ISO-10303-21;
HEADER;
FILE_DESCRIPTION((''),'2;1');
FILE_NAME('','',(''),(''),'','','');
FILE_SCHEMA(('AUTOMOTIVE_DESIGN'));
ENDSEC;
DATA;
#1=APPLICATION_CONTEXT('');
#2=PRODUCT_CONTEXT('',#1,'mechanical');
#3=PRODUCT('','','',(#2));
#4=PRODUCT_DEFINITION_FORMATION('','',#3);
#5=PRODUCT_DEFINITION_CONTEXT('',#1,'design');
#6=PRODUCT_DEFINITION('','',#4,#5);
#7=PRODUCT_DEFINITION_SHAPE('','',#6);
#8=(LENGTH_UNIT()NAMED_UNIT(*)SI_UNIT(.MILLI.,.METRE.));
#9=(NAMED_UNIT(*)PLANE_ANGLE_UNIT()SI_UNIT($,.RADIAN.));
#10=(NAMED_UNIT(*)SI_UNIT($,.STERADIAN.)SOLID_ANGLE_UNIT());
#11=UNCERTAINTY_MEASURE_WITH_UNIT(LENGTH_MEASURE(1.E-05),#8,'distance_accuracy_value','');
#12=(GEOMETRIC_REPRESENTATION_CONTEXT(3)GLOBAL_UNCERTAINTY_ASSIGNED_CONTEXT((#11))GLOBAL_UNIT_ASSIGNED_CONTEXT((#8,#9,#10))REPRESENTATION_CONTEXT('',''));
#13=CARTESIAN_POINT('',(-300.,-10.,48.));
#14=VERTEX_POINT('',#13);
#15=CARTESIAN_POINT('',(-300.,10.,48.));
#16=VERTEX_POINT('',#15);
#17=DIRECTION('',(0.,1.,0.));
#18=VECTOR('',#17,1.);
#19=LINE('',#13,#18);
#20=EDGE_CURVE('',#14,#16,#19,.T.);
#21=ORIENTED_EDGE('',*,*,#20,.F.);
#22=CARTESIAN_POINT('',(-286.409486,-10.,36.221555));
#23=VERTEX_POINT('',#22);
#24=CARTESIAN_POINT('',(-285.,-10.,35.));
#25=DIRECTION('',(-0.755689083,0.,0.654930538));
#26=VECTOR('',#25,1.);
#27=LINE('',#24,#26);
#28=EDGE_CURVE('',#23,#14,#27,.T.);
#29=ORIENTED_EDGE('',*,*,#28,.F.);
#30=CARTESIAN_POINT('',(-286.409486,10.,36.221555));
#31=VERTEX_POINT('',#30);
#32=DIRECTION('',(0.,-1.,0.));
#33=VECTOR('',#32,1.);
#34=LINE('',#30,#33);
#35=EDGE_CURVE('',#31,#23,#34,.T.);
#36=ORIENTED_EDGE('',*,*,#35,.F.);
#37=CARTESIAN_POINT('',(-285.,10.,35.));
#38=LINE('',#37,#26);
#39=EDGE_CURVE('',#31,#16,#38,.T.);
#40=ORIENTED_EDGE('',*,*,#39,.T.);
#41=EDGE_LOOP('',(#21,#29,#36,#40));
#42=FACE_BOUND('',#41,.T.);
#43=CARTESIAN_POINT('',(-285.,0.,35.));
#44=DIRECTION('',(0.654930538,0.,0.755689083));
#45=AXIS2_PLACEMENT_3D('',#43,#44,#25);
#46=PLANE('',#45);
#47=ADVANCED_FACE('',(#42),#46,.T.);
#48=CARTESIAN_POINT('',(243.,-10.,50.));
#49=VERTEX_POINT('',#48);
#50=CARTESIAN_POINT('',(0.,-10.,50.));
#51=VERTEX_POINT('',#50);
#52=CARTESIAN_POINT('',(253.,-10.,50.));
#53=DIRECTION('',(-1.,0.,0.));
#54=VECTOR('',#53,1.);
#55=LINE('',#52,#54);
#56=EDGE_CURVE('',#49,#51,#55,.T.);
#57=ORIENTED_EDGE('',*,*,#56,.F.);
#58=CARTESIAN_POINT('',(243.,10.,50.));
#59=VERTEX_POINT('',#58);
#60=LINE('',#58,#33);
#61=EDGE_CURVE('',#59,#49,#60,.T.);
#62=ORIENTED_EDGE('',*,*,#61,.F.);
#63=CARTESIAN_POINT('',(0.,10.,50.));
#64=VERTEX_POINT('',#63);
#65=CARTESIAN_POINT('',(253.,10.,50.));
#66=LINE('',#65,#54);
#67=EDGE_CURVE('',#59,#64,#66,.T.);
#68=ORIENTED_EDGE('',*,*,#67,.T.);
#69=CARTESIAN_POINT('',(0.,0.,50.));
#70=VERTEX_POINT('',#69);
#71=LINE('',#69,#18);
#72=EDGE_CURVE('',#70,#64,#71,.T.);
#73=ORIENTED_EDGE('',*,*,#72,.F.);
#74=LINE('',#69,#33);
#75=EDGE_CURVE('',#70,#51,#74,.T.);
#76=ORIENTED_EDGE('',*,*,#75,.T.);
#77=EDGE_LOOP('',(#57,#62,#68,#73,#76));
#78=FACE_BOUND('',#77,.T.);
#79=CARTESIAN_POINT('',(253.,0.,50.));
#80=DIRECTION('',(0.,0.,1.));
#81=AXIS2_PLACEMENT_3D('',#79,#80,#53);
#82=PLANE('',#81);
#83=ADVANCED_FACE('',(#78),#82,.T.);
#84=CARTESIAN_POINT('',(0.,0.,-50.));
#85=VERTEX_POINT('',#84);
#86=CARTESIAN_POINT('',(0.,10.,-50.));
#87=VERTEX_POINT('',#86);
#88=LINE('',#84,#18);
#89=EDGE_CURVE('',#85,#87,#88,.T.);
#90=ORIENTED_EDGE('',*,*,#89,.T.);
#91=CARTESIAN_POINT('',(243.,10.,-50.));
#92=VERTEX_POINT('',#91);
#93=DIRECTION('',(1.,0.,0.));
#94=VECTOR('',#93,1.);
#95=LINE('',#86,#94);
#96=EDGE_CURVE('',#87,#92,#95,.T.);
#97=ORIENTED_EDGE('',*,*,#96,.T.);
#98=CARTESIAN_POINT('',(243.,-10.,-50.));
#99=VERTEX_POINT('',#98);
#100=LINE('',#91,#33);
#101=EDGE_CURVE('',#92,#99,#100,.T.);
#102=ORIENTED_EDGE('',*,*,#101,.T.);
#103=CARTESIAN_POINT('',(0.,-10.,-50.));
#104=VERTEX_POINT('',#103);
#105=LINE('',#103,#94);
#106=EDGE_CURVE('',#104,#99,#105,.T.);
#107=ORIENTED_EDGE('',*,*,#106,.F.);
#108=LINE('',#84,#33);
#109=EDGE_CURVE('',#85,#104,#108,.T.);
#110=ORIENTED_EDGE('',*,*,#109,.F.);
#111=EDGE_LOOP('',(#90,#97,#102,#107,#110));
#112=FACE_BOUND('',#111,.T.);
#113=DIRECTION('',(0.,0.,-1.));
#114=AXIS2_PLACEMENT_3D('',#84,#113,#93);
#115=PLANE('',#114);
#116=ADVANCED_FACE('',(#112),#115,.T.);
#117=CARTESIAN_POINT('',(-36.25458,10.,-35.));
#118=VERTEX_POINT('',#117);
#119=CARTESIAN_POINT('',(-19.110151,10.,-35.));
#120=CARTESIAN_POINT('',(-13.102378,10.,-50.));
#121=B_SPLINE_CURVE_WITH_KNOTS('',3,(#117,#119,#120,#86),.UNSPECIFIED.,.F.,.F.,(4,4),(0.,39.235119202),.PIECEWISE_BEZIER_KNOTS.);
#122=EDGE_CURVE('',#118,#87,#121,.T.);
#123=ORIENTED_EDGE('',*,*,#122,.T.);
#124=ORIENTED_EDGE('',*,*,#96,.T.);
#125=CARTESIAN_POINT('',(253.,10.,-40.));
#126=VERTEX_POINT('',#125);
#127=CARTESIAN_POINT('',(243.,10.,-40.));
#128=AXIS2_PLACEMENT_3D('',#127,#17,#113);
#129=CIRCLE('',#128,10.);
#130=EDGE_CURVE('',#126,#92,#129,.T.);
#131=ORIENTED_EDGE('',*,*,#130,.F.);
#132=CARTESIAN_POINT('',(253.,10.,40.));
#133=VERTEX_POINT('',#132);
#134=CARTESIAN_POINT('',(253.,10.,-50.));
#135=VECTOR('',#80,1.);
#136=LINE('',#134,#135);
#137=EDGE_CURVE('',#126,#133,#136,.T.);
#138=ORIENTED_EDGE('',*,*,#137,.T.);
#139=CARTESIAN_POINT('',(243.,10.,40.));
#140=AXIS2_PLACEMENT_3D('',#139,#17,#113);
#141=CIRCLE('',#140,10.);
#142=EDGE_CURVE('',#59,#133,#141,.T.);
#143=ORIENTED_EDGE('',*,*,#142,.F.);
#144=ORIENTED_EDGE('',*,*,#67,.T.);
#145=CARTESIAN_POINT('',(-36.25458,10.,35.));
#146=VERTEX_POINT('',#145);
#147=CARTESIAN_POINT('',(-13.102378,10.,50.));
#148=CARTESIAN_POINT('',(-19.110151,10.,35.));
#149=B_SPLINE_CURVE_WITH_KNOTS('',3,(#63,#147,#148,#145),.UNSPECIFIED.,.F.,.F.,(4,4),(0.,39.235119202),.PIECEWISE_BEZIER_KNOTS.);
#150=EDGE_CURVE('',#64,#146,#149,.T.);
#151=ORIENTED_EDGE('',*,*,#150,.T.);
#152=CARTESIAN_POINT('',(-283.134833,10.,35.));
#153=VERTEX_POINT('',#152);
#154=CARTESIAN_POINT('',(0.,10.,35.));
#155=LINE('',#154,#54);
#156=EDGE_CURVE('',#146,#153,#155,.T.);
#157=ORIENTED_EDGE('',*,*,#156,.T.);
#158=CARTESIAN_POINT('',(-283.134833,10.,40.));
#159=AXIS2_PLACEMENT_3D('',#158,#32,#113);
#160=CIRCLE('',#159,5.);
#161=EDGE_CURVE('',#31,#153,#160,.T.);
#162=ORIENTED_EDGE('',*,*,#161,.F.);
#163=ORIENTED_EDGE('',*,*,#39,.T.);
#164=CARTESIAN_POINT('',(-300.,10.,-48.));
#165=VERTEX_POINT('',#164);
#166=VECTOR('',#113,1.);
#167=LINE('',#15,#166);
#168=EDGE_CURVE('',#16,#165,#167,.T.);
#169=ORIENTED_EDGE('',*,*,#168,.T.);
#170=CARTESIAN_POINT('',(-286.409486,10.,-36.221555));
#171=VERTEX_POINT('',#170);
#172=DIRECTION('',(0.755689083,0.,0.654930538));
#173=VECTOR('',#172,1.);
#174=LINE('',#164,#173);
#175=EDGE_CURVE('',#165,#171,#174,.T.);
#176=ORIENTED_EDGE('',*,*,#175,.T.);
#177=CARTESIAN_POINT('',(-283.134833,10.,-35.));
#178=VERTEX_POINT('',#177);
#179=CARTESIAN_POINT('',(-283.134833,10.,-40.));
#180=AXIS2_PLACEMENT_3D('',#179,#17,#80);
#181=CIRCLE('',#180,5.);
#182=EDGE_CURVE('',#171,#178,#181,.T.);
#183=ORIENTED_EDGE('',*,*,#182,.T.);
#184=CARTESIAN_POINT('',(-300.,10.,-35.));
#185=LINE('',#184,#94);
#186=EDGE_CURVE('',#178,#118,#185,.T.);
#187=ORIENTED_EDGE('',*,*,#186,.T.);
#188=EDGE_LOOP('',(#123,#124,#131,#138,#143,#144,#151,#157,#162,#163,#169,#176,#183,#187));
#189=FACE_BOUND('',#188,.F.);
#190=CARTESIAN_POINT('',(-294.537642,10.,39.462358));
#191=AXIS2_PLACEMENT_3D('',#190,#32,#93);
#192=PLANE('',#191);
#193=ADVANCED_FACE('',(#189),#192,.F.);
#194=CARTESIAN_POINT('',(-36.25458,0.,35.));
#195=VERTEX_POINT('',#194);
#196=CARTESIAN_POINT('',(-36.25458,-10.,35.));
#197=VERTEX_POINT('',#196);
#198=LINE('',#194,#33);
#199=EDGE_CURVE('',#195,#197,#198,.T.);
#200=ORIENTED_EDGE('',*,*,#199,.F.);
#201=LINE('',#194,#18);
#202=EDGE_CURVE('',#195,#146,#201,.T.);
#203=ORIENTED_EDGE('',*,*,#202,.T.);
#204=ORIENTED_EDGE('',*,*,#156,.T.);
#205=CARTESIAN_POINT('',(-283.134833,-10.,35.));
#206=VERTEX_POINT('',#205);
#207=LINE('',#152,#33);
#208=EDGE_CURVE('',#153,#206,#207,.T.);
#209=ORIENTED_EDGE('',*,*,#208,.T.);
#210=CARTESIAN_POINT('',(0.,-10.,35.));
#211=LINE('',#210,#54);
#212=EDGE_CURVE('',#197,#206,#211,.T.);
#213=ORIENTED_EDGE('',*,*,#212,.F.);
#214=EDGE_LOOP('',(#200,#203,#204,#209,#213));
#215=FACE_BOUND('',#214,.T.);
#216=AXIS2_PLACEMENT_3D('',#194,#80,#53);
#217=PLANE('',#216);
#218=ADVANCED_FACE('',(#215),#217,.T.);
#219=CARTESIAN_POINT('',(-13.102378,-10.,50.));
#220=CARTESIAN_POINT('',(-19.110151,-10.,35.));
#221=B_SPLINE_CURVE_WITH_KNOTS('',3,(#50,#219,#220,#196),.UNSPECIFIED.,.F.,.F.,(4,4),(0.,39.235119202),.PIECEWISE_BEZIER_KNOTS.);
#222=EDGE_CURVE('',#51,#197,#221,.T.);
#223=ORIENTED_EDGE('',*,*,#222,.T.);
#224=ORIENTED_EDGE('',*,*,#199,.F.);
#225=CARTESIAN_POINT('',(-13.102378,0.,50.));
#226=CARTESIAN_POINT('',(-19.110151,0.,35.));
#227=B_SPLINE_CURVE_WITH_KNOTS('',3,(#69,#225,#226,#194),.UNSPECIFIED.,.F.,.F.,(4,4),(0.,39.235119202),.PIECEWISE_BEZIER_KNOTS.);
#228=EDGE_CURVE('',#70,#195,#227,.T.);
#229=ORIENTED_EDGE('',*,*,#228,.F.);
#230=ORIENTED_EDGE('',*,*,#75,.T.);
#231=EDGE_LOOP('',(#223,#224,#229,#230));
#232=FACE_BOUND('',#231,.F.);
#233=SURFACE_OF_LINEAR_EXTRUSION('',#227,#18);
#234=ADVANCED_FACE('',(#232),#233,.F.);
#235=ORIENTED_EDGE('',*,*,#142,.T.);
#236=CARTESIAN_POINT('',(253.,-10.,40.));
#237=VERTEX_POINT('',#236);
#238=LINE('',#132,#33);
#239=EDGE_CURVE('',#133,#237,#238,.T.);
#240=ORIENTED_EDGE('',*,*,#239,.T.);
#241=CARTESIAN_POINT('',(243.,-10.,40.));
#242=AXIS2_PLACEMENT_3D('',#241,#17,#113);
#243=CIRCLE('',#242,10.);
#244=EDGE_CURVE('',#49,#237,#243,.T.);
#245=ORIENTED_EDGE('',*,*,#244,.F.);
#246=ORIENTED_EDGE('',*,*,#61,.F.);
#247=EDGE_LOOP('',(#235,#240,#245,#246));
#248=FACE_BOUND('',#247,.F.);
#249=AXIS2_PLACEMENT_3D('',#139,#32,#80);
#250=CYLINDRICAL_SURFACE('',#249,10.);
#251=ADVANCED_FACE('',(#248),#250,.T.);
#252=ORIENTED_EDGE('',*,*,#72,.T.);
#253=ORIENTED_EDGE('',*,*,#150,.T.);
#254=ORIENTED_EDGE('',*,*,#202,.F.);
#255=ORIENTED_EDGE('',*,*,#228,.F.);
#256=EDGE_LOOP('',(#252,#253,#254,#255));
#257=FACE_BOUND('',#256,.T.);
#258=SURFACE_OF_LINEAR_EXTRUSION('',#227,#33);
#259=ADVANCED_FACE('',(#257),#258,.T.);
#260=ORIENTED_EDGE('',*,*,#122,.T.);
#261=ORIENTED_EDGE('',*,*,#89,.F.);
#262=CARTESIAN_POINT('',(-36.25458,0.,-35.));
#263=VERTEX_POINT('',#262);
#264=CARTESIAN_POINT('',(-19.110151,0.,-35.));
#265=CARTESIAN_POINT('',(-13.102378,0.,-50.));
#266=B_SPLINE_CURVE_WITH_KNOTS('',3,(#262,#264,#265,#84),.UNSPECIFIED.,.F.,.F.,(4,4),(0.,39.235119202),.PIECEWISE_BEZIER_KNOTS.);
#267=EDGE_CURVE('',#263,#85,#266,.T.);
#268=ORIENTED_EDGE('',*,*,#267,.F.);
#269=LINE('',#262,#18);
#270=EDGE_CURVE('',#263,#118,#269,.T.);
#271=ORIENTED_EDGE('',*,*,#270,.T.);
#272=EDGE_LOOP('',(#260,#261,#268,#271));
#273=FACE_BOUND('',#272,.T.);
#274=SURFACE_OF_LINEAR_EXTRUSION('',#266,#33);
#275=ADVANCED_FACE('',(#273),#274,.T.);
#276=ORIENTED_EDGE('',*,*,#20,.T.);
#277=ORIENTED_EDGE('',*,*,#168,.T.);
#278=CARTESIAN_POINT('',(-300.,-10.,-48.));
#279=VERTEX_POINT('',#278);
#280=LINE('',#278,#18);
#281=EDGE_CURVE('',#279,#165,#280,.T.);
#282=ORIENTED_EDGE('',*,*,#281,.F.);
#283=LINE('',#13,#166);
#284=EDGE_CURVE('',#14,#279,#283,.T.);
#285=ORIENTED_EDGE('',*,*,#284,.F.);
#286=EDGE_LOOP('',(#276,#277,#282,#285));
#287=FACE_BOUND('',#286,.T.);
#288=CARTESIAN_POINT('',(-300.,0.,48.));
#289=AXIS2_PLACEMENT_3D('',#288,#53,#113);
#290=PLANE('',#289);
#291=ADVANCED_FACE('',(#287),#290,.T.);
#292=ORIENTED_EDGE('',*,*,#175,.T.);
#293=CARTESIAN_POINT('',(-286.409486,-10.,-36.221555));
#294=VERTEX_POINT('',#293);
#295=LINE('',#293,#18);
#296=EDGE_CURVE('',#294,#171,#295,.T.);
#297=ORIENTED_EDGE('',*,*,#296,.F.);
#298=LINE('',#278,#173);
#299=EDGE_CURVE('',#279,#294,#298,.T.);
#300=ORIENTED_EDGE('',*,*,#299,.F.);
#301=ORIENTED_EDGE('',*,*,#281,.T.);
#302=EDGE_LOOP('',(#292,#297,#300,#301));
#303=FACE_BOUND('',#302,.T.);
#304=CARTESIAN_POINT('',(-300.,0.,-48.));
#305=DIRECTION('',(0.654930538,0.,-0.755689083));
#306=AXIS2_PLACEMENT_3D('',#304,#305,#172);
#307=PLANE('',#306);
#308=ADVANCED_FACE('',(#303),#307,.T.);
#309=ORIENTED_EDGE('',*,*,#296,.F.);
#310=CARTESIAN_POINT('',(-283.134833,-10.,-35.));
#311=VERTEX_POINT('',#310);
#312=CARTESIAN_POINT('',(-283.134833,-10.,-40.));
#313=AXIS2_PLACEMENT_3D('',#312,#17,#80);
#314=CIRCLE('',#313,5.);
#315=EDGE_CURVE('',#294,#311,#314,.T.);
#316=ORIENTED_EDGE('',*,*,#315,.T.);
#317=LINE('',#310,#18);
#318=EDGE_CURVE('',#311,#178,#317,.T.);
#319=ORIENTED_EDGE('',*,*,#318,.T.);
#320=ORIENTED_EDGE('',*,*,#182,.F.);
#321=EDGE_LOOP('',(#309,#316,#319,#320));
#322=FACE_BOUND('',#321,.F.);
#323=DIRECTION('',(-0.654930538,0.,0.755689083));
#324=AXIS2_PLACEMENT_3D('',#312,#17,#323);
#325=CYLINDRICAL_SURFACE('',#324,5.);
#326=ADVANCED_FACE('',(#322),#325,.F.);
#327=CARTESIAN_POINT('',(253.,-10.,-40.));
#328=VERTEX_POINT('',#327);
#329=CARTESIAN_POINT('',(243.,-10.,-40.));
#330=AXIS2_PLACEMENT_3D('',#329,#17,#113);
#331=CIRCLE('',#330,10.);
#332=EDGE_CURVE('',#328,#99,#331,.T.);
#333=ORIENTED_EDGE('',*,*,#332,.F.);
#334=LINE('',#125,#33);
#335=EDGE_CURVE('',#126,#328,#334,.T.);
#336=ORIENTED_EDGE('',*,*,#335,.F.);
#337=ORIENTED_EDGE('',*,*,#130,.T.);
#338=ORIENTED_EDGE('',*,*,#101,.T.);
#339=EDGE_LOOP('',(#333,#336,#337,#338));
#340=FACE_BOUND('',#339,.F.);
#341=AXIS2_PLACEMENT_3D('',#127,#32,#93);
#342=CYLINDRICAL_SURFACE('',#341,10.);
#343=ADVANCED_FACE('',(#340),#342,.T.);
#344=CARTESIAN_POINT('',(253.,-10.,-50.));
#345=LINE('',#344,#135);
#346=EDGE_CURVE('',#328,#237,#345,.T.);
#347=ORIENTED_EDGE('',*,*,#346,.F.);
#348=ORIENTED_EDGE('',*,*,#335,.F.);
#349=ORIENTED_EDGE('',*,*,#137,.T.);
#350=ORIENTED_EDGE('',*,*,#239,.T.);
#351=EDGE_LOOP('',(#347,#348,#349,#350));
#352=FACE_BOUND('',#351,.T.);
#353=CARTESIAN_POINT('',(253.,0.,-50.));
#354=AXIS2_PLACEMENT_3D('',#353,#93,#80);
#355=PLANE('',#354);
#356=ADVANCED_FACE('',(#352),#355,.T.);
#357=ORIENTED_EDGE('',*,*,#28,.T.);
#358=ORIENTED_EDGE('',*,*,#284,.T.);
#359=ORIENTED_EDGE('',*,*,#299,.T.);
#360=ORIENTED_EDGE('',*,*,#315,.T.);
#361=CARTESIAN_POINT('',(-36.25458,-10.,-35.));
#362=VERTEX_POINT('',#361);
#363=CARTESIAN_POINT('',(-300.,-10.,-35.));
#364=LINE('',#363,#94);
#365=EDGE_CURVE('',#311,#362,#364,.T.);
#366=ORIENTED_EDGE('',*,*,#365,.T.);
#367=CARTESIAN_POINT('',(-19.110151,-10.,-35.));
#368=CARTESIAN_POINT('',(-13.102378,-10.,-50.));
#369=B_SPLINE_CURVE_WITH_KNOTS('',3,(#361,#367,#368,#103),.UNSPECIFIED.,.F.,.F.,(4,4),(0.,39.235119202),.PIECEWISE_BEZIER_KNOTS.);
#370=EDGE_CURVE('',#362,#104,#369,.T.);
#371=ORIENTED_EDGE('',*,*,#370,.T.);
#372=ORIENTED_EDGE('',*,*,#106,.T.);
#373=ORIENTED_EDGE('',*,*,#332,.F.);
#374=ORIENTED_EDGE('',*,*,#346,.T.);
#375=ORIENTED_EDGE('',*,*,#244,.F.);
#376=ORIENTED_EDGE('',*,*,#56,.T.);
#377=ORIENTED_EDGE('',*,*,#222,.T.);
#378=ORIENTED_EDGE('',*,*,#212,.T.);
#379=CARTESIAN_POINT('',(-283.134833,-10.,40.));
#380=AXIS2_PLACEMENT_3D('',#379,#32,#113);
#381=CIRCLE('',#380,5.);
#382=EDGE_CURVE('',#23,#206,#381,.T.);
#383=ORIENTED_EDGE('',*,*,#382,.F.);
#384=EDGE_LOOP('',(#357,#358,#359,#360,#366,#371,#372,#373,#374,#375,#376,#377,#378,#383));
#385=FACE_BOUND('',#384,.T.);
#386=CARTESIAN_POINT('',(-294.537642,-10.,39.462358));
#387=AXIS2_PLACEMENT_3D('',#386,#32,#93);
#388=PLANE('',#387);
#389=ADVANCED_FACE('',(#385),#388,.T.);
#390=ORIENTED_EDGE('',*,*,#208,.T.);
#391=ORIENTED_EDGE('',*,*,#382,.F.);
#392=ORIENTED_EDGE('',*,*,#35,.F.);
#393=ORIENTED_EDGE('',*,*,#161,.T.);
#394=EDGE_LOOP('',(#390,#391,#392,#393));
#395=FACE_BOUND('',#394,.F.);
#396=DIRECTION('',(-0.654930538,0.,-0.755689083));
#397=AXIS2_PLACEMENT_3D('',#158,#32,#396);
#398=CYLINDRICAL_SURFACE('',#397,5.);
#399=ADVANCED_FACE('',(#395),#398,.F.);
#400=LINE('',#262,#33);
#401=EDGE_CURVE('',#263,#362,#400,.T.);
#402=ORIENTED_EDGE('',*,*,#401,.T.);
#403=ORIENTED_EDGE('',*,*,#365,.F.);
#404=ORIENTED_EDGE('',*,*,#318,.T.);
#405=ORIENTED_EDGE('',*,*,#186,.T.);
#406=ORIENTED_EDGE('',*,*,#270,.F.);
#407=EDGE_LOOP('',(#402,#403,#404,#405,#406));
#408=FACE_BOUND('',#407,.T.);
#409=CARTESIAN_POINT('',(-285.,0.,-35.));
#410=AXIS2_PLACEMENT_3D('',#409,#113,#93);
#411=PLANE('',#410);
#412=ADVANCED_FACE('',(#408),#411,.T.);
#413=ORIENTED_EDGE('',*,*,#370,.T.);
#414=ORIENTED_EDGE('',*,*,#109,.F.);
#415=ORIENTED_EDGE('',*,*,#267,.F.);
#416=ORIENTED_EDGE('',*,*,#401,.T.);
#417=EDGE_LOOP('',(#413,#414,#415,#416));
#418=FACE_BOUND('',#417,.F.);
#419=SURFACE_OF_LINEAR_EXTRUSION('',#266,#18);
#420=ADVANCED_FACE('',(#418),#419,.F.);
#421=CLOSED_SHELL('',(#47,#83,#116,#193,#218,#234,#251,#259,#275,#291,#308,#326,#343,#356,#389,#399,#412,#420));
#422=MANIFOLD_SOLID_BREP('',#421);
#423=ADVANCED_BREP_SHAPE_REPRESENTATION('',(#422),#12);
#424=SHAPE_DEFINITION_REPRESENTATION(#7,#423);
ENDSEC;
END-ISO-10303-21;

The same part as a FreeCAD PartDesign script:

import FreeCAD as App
import Part
import Sketcher
Q = App.Units.Quantity


def edges_at(feature, points):
    """Names of the edges that pass closest to the given points."""
    edges = feature.Shape.Edges
    near = lambda p: min(range(len(edges)), key=lambda i: edges[i].distToShape(Part.Vertex(*p))[0])
    return sorted({f"Edge{near(p) + 1}" for p in points})

doc = App.newDocument("Part")
body = doc.addObject("PartDesign::Body", "Body")

sketch1 = doc.addObject("Sketcher::SketchObject", "Sketch")
body.addObject(sketch1)
sketch1.AttachmentSupport = (doc.XZ_Plane, [""])
sketch1.MapMode = "FlatFace"
sketch1.addGeometry(Part.LineSegment(App.Vector(-285, -35, 0), App.Vector(-36.25458, -35, 0)), False)
sketch1.addGeometry(Part.BSplineCurve([App.Vector(-36.25458, -35, 0), App.Vector(-19.110151, -35, 0), App.Vector(-13.102378, -50, 0), App.Vector(0, -50, 0)], [4, 4], [0, 39.235119202], False, 3, [1, 1, 1, 1], False), False)
sketch1.addGeometry(Part.LineSegment(App.Vector(0, -50, 0), App.Vector(253, -50, 0)), False)
sketch1.addGeometry(Part.LineSegment(App.Vector(253, -50, 0), App.Vector(253, 50, 0)), False)
sketch1.addGeometry(Part.LineSegment(App.Vector(253, 50, 0), App.Vector(0, 50, 0)), False)
sketch1.addGeometry(Part.BSplineCurve([App.Vector(0, 50, 0), App.Vector(-13.102378, 50, 0), App.Vector(-19.110151, 35, 0), App.Vector(-36.25458, 35, 0)], [4, 4], [0, 39.235119202], False, 3, [1, 1, 1, 1], False), False)
sketch1.addGeometry(Part.LineSegment(App.Vector(-36.25458, 35, 0), App.Vector(-285, 35, 0)), False)
sketch1.addGeometry(Part.LineSegment(App.Vector(-285, 35, 0), App.Vector(-300, 48, 0)), False)
sketch1.addGeometry(Part.LineSegment(App.Vector(-300, 48, 0), App.Vector(-300, -48, 0)), False)
sketch1.addGeometry(Part.LineSegment(App.Vector(-300, -48, 0), App.Vector(-285, -35, 0)), False)
sketch1.addConstraint(Sketcher.Constraint("Block", 1))
sketch1.addConstraint(Sketcher.Constraint("Block", 5))
sketch1.addConstraint(Sketcher.Constraint("Coincident", 0, 2, 1, 1))
sketch1.addConstraint(Sketcher.Constraint("Coincident", 1, 2, 2, 1))
sketch1.addConstraint(Sketcher.Constraint("Coincident", 2, 2, 3, 1))
sketch1.addConstraint(Sketcher.Constraint("Coincident", 3, 2, 4, 1))
sketch1.addConstraint(Sketcher.Constraint("Coincident", 4, 2, 5, 1))
sketch1.addConstraint(Sketcher.Constraint("Coincident", 5, 2, 6, 1))
sketch1.addConstraint(Sketcher.Constraint("Coincident", 6, 2, 7, 1))
sketch1.addConstraint(Sketcher.Constraint("Coincident", 7, 2, 8, 1))
sketch1.addConstraint(Sketcher.Constraint("Coincident", 8, 2, 9, 1))
sketch1.addConstraint(Sketcher.Constraint("Coincident", 9, 2, 0, 1))
sketch1.addConstraint(Sketcher.Constraint("Horizontal", 0))
sketch1.addConstraint(Sketcher.Constraint("Horizontal", 2))
sketch1.addConstraint(Sketcher.Constraint("Vertical", 3))
sketch1.addConstraint(Sketcher.Constraint("Horizontal", 4))
sketch1.addConstraint(Sketcher.Constraint("Horizontal", 6))
sketch1.addConstraint(Sketcher.Constraint("Vertical", 8))
sketch1.addConstraint(Sketcher.Constraint("Vertical", 6, 2, 9, 2))
sketch1.addConstraint(Sketcher.Constraint("Equal", 7, 9))
sketch1.addConstraint(Sketcher.Constraint("DistanceX", 2, 1, 2, 2, Q("253 mm")))
sketch1.addConstraint(Sketcher.Constraint("DistanceY", 8, 2, 8, 1, Q("96 mm")))
sketch1.addConstraint(Sketcher.Constraint("DistanceX", 6, 2, -1, 1, Q("285 mm")))
sketch1.addConstraint(Sketcher.Constraint("DistanceX", 7, 2, -1, 1, Q("300 mm")))
pad1 = doc.addObject("PartDesign::Pad", "Pad")
body.addObject(pad1)
pad1.Profile = sketch1
pad1.Length = 20
pad1.Midplane = True
doc.recompute()

fillet = doc.addObject("PartDesign::Fillet", "Fillet")
body.addObject(fillet)
fillet.Base = (pad1, edges_at(pad1, [(253, 0, 50), (253, 0, -50)]))
fillet.Radius = 10
doc.recompute()

fillet2 = doc.addObject("PartDesign::Fillet", "Fillet001")
body.addObject(fillet2)
fillet2.Base = (fillet, edges_at(fillet, [(-285, 0, 35)]))
fillet2.Radius = 5
doc.recompute()

fillet3 = doc.addObject("PartDesign::Fillet", "Fillet002")
body.addObject(fillet3)
fillet3.Base = (fillet2, edges_at(fillet2, [(-285, 0, -35)]))
fillet3.Radius = 5

doc.recompute()
